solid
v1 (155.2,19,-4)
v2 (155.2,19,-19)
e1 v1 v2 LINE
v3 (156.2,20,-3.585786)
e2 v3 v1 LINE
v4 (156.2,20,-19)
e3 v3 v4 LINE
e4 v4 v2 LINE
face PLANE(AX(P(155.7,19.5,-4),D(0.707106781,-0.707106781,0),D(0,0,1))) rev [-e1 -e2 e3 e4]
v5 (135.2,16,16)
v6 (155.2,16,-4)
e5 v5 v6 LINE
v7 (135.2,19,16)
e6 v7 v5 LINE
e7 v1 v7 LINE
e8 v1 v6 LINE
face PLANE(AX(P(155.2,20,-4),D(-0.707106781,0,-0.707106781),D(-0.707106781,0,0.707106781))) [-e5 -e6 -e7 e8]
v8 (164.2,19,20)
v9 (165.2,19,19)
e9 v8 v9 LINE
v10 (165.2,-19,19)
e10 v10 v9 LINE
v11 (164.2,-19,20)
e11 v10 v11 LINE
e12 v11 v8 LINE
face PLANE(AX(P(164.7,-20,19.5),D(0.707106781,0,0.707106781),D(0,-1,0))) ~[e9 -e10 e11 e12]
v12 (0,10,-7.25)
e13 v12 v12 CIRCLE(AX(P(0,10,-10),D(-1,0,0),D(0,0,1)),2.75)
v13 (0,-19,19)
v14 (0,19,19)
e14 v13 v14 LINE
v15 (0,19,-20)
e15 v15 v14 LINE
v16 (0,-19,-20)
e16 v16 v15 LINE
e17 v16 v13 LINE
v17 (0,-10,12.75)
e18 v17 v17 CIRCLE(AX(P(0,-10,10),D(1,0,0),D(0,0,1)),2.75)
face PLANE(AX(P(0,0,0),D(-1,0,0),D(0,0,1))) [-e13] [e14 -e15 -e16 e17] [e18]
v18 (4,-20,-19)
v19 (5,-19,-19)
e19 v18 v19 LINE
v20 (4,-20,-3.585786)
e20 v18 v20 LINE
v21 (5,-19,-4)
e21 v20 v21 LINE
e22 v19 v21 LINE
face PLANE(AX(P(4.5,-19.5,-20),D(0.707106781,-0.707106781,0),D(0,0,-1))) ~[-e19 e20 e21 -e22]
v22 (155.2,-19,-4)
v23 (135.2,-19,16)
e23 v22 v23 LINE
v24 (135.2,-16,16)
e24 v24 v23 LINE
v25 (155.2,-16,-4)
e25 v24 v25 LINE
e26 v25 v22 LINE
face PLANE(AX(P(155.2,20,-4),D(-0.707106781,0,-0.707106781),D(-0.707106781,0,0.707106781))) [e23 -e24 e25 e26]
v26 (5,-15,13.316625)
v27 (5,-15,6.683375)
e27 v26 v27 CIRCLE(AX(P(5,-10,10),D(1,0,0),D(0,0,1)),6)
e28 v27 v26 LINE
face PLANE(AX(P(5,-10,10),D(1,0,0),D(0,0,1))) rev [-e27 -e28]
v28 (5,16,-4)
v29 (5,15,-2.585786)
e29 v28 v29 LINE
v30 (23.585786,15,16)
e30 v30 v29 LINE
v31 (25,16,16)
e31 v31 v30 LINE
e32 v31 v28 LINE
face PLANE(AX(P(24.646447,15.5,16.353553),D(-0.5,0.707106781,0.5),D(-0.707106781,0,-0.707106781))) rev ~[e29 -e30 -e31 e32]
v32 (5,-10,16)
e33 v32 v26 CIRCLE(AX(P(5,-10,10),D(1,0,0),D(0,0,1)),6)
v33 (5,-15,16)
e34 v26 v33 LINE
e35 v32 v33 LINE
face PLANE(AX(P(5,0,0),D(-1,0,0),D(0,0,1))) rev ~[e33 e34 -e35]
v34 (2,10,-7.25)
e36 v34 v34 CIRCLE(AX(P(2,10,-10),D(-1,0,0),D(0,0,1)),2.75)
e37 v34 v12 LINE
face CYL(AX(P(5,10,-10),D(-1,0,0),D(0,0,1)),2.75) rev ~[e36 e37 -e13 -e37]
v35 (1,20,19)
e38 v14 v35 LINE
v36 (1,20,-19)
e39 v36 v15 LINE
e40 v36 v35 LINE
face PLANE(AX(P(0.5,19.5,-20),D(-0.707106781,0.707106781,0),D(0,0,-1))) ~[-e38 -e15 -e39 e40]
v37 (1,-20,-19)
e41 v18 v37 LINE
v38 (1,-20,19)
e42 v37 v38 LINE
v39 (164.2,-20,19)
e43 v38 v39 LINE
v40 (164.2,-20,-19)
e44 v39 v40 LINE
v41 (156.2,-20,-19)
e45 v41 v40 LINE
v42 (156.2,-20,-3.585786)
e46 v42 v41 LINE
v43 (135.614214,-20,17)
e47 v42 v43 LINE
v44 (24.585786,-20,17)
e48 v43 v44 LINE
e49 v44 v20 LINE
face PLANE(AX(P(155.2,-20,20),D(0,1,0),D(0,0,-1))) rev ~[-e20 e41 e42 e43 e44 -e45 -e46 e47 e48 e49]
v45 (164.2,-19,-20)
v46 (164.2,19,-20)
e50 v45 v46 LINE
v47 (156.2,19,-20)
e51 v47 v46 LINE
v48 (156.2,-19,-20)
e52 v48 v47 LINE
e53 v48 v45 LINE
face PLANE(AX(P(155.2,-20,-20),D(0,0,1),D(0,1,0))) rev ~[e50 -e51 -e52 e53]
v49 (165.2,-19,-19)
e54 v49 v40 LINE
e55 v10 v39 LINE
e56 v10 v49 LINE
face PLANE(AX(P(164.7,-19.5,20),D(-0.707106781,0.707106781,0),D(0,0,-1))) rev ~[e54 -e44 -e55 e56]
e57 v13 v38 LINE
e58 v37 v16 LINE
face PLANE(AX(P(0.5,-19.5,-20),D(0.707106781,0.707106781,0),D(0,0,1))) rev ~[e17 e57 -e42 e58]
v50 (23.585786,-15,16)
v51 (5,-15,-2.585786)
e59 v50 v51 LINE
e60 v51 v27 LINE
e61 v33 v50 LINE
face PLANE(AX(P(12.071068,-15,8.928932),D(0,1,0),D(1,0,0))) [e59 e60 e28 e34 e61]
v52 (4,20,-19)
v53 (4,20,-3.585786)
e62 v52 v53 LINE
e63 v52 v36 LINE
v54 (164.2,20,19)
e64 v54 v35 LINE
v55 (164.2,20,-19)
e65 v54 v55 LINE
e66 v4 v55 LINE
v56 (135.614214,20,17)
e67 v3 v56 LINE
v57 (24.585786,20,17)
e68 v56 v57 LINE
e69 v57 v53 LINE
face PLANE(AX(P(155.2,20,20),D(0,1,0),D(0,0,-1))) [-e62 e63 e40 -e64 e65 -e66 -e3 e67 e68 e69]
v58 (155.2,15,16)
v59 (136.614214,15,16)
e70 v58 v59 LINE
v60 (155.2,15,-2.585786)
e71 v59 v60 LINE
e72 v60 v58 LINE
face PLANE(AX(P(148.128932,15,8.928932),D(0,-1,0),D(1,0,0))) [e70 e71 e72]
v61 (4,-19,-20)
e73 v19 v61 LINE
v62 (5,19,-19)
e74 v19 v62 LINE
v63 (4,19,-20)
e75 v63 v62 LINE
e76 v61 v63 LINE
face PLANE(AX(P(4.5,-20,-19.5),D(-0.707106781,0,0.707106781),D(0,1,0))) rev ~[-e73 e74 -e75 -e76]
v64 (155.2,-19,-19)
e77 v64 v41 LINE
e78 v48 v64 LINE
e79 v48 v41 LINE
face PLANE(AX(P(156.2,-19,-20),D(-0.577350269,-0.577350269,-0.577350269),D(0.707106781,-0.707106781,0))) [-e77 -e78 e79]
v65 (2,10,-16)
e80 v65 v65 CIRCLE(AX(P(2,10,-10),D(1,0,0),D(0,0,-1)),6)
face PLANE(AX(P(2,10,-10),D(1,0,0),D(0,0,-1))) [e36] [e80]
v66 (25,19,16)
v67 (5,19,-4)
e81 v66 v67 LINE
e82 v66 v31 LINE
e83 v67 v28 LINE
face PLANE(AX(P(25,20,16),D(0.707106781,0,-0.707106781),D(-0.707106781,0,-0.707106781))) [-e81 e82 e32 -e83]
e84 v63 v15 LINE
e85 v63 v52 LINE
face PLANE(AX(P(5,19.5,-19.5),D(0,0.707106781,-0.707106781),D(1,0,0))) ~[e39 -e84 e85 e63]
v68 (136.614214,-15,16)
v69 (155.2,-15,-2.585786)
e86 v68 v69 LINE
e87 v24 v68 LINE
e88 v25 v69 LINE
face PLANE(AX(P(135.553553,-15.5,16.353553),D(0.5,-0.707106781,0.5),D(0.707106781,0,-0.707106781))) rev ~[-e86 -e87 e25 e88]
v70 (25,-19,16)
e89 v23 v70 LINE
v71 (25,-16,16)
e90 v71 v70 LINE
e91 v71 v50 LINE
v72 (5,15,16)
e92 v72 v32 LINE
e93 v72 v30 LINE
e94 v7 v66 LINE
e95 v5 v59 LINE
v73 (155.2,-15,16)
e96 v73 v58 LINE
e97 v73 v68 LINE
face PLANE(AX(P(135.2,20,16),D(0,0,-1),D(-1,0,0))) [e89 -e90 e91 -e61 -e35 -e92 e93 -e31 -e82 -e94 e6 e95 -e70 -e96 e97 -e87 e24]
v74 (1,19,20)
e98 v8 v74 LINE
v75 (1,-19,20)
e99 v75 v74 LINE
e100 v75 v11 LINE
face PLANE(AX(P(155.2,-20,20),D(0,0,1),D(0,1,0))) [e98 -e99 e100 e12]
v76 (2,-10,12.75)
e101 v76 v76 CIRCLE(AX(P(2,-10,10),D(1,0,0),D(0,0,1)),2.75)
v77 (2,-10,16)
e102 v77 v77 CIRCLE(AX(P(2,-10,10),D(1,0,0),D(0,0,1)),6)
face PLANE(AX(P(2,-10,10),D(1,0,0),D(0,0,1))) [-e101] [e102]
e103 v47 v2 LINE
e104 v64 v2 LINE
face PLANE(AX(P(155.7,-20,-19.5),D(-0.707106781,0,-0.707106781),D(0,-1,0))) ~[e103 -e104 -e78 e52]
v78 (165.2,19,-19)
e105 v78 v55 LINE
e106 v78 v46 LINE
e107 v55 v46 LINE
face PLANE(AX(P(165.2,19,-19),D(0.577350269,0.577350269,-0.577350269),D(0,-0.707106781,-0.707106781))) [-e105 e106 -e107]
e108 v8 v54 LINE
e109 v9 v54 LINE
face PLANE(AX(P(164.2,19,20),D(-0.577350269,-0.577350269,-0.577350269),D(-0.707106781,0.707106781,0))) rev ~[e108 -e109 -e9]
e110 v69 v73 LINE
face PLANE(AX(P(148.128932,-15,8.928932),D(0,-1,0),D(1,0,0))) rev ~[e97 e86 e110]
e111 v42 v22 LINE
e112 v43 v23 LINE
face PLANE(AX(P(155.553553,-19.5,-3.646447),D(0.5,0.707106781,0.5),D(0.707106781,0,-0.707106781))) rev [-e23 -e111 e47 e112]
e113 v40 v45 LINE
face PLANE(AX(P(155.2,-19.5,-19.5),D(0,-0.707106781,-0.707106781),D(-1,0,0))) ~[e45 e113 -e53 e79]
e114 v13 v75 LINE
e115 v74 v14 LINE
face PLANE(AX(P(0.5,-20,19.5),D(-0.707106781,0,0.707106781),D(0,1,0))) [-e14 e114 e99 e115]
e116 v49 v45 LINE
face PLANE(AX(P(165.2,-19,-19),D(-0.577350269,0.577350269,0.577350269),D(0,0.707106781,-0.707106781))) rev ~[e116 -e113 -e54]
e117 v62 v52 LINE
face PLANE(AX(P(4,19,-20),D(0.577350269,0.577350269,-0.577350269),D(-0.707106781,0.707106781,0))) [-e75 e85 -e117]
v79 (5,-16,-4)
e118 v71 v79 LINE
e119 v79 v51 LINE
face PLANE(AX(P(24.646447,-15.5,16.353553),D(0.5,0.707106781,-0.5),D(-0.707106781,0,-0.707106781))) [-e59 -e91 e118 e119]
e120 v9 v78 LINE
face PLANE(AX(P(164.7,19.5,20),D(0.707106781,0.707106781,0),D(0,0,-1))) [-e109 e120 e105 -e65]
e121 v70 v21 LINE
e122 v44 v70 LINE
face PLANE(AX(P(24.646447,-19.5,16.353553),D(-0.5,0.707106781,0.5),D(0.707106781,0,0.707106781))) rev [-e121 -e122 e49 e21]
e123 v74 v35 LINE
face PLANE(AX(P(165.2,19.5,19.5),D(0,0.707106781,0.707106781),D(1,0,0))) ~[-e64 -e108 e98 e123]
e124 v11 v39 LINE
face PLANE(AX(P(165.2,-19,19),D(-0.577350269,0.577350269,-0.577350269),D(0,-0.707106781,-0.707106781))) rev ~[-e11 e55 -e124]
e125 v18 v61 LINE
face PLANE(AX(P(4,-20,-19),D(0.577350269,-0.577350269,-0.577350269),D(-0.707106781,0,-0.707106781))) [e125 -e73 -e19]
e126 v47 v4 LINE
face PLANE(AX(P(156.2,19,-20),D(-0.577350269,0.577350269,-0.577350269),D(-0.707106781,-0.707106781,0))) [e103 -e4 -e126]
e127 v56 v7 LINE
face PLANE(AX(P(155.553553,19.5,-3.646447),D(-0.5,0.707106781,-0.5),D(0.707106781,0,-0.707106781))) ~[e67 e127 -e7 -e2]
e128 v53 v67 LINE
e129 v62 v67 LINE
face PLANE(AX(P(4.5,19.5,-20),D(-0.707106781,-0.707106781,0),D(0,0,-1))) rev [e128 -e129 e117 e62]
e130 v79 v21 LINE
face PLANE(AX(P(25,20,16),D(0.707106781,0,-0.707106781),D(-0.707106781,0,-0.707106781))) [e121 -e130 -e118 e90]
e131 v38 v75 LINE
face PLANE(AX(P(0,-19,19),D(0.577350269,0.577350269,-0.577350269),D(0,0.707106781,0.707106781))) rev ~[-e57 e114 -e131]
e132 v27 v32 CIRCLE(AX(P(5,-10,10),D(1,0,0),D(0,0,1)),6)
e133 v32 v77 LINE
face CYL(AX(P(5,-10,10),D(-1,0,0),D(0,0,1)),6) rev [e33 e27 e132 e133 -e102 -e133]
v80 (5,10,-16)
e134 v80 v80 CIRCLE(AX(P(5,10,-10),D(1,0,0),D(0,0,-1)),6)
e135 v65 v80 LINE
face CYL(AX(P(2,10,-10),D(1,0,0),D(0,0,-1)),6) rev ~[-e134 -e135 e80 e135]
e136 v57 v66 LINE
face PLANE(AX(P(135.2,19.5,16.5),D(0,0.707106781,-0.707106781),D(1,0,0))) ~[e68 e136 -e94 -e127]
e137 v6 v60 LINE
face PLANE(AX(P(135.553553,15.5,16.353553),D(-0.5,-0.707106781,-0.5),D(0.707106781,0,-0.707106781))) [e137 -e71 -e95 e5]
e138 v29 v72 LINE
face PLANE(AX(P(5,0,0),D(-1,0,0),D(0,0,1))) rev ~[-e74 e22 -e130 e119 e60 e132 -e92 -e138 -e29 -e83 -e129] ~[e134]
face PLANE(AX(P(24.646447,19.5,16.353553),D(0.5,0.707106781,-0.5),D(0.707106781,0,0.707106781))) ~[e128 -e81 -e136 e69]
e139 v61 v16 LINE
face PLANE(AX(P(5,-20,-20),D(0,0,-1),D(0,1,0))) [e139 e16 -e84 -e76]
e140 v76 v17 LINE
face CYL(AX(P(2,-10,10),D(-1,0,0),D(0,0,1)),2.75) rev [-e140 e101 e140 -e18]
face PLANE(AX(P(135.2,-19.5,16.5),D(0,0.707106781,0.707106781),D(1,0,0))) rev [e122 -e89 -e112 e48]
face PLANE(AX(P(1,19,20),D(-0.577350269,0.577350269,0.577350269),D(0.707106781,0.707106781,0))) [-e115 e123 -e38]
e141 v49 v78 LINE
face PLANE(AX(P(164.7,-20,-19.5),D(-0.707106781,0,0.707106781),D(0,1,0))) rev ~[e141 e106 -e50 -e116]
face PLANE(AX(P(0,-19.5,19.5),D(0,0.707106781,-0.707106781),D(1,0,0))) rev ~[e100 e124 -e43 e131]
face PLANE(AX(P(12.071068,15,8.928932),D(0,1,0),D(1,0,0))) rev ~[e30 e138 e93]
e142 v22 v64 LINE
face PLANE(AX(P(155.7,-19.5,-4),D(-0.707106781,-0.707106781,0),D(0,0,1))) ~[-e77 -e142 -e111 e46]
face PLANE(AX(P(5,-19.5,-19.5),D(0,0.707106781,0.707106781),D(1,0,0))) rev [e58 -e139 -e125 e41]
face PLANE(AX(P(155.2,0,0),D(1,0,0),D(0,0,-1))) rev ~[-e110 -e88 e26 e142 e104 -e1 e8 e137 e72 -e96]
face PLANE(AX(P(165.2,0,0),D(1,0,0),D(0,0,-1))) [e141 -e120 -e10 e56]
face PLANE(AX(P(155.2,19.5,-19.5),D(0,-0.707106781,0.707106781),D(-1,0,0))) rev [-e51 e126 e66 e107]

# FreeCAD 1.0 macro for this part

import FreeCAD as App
import Part
import Sketcher


def edges_at(feature, points):
    """Names of the edges that pass closest to the given points."""
    edges = feature.Shape.Edges
    near = lambda p: min(range(len(edges)), key=lambda i: edges[i].distToShape(Part.Vertex(*p))[0])
    return sorted({f"Edge{near(p) + 1}" for p in points})

doc = App.newDocument("Part")
params = doc.addObject("Spreadsheet::Sheet", "Params")
for row, (alias, value) in enumerate([
    ("sketch1_height", "24 mm"),
    ("sketch1_width", "150.2 mm"),
    ("sketch1_width2", "110.2 mm"),
    ("pad1_length", "40 mm"),
    ("sketch2_width", "40 mm"),
    ("pad2_length", "5 mm"),
    ("sketch3_width", "40 mm"),
    ("pad3_length", "10 mm"),
    ("sketch4_width", "20 mm"),
    ("pocket1_length", "30 mm"),
    ("sketch5_width", "20 mm"),
    ("pocket2_length", "30 mm"),
    ("sketch6_width", "5 mm"),
    ("sketch6_width2", "2 mm"),
    ("sketch6_height", "6 mm"),
    ("sketch6_height2", "2.75 mm"),
    ("groove_angle", "360 deg"),
    ("sketch7_diameter", "5.5 mm"),
    ("hole_diameter", "5.5 mm"),
    ("hole_depth", "5 mm"),
    ("hole_cbore_diameter", "12 mm"),
    ("hole_cbore_depth", "3 mm"),
    ("chamfer_size", "1 mm"),
], start=1):
    params.set(f"A{row}", alias)
    params.set(f"B{row}", "=" + value)
    params.setAlias(f"B{row}", alias)

body = doc.addObject("PartDesign::Body", "Body")

sketch1 = body.newObject("Sketcher::SketchObject", "Sketch")
sketch1.AttachmentSupport = (doc.getObject("XZ_Plane"), [""])
sketch1.MapMode = "FlatFace"
sketch1.AttachmentOffset = App.Placement(App.Vector(0, 0, -20), App.Rotation())
sketch1.addGeometry([
    Part.LineSegment(App.Vector(5, -4, 0), App.Vector(5, 20, 0)),
    Part.LineSegment(App.Vector(5, 20, 0), App.Vector(155, 20, 0)),
    Part.LineSegment(App.Vector(155, 20, 0), App.Vector(155, -4, 0)),
    Part.LineSegment(App.Vector(155, -4, 0), App.Vector(135, 16, 0)),
    Part.LineSegment(App.Vector(135, 16, 0), App.Vector(25, 16, 0)),
    Part.LineSegment(App.Vector(25, 16, 0), App.Vector(5, -4, 0)),
], False)
sketch1.addConstraint([
    Sketcher.Constraint("Coincident", 0, 2, 1, 1),
    Sketcher.Constraint("Coincident", 1, 2, 2, 1),
    Sketcher.Constraint("Coincident", 2, 2, 3, 1),
    Sketcher.Constraint("Coincident", 3, 2, 4, 1),
    Sketcher.Constraint("Coincident", 4, 2, 5, 1),
    Sketcher.Constraint("Coincident", 5, 2, 0, 1),
    Sketcher.Constraint("Vertical", 0),
    Sketcher.Constraint("Horizontal", 1),
    Sketcher.Constraint("Vertical", 2),
    Sketcher.Constraint("Horizontal", 4),
    Sketcher.Constraint("Perpendicular", 3, 5),
    Sketcher.Constraint("Horizontal", 2, 2, 5, 2),
    Sketcher.Constraint("Equal", 3, 5),
    Sketcher.Constraint("DistanceY", 0, 1, 0, 2, 24.0),
    Sketcher.Constraint("DistanceX", 1, 1, 1, 2, 150.2),
    Sketcher.Constraint("DistanceX", 4, 2, 4, 1, 110.2),
    Sketcher.Constraint("DistanceX", -1, 1, 0, 2, 5.0),
    Sketcher.Constraint("DistanceY", -1, 1, 0, 2, 20.0),
])
sketch1.setExpression("Constraints[13]", "Params.sketch1_height")
sketch1.setExpression("Constraints[14]", "Params.sketch1_width")
sketch1.setExpression("Constraints[15]", "Params.sketch1_width2")
pad1 = body.newObject("PartDesign::Pad", "Pad")
pad1.Profile = sketch1
pad1.setExpression("Length", "Params.pad1_length")

sketch2 = body.newObject("Sketcher::SketchObject", "Sketch001")
sketch2.AttachmentSupport = (doc.getObject("YZ_Plane"), [""])
sketch2.MapMode = "FlatFace"
sketch2.AttachmentOffset = App.Placement(App.Vector(0, 0, 5), App.Rotation())
sketch2.addGeometry([
    Part.LineSegment(App.Vector(20, -20, 0), App.Vector(-20, -20, 0)),
    Part.LineSegment(App.Vector(-20, -20, 0), App.Vector(-20, 20, 0)),
    Part.LineSegment(App.Vector(-20, 20, 0), App.Vector(20, 20, 0)),
    Part.LineSegment(App.Vector(20, 20, 0), App.Vector(20, -20, 0)),
], False)
sketch2.addConstraint([
    Sketcher.Constraint("Coincident", 0, 2, 1, 1),
    Sketcher.Constraint("Coincident", 1, 2, 2, 1),
    Sketcher.Constraint("Coincident", 2, 2, 3, 1),
    Sketcher.Constraint("Coincident", 3, 2, 0, 1),
    Sketcher.Constraint("Horizontal", 0),
    Sketcher.Constraint("Vertical", 1),
    Sketcher.Constraint("Horizontal", 2),
    Sketcher.Constraint("Vertical", 3),
    Sketcher.Constraint("Symmetric", 0, 2, 2, 2, -1, 1),
    Sketcher.Constraint("Equal", 2, 1),
    Sketcher.Constraint("DistanceX", 0, 2, 0, 1, 40.0),
])
sketch2.setExpression("Constraints[10]", "Params.sketch2_width")
pad2 = body.newObject("PartDesign::Pad", "Pad001")
pad2.Profile = sketch2
pad2.setExpression("Length", "Params.pad2_length")
pad2.Reversed = True

sketch3 = body.newObject("Sketcher::SketchObject", "Sketch002")
sketch3.AttachmentSupport = (doc.getObject("YZ_Plane"), [""])
sketch3.MapMode = "FlatFace"
sketch3.AttachmentOffset = App.Placement(App.Vector(0, 0, 155.2), App.Rotation())
sketch3.addGeometry([
    Part.LineSegment(App.Vector(20, 20, 0), App.Vector(-20, 20, 0)),
    Part.LineSegment(App.Vector(-20, 20, 0), App.Vector(-20, -20, 0)),
    Part.LineSegment(App.Vector(-20, -20, 0), App.Vector(20, -20, 0)),
    Part.LineSegment(App.Vector(20, -20, 0), App.Vector(20, 20, 0)),
], False)
sketch3.addConstraint([
    Sketcher.Constraint("Coincident", 0, 2, 1, 1),
    Sketcher.Constraint("Coincident", 1, 2, 2, 1),
    Sketcher.Constraint("Coincident", 2, 2, 3, 1),
    Sketcher.Constraint("Coincident", 3, 2, 0, 1),
    Sketcher.Constraint("Horizontal", 0),
    Sketcher.Constraint("Vertical", 1),
    Sketcher.Constraint("Horizontal", 2),
    Sketcher.Constraint("Vertical", 3),
    Sketcher.Constraint("Symmetric", 0, 2, 2, 2, -1, 1),
    Sketcher.Constraint("Equal", 2, 1),
    Sketcher.Constraint("DistanceX", 0, 2, 0, 1, 40.0),
])
sketch3.setExpression("Constraints[10]", "Params.sketch3_width")
pad3 = body.newObject("PartDesign::Pad", "Pad002")
pad3.Profile = sketch3
pad3.setExpression("Length", "Params.pad3_length")

sketch4 = body.newObject("Sketcher::SketchObject", "Sketch003")
sketch4.AttachmentSupport = (doc.getObject("XZ_Plane"), [""])
sketch4.MapMode = "FlatFace"
sketch4.AttachmentOffset = App.Placement(App.Vector(0, 0, 15), App.Rotation())
sketch4.addGeometry([
    Part.LineSegment(App.Vector(155, -4, 0), App.Vector(155, 16, 0)),
    Part.LineSegment(App.Vector(155, 16, 0), App.Vector(135, 16, 0)),
    Part.LineSegment(App.Vector(135, 16, 0), App.Vector(155, -4, 0)),
], False)
sketch4.addConstraint([
    Sketcher.Constraint("Coincident", 0, 2, 1, 1),
    Sketcher.Constraint("Coincident", 1, 2, 2, 1),
    Sketcher.Constraint("Coincident", 2, 2, 0, 1),
    Sketcher.Constraint("Vertical", 0),
    Sketcher.Constraint("Horizontal", 1),
    Sketcher.Constraint("Equal", 1, 0),
    Sketcher.Constraint("DistanceX", 1, 2, 1, 1, 20.0),
    Sketcher.Constraint("DistanceY", -1, 1, 0, 2, 16.0),
    Sketcher.Constraint("DistanceX", -1, 1, 0, 2, 155.2),
])
sketch4.setExpression("Constraints[6]", "Params.sketch4_width")
pocket1 = body.newObject("PartDesign::Pocket", "Pocket")
pocket1.Profile = sketch4
pocket1.setExpression("Length", "Params.pocket1_length")

sketch5 = body.newObject("Sketcher::SketchObject", "Sketch004")
sketch5.AttachmentSupport = (doc.getObject("XZ_Plane"), [""])
sketch5.MapMode = "FlatFace"
sketch5.AttachmentOffset = App.Placement(App.Vector(0, 0, -15), App.Rotation())
sketch5.addGeometry([
    Part.LineSegment(App.Vector(5, -4, 0), App.Vector(5, 16, 0)),
    Part.LineSegment(App.Vector(5, 16, 0), App.Vector(25, 16, 0)),
    Part.LineSegment(App.Vector(25, 16, 0), App.Vector(5, -4, 0)),
], False)
sketch5.addConstraint([
    Sketcher.Constraint("Coincident", 0, 2, 1, 1),
    Sketcher.Constraint("Coincident", 1, 2, 2, 1),
    Sketcher.Constraint("Coincident", 2, 2, 0, 1),
    Sketcher.Constraint("Vertical", 0),
    Sketcher.Constraint("Horizontal", 1),
    Sketcher.Constraint("Equal", 1, 0),
    Sketcher.Constraint("DistanceX", 1, 1, 1, 2, 20.0),
    Sketcher.Constraint("DistanceX", -1, 1, 0, 2, 5.0),
    Sketcher.Constraint("DistanceY", -1, 1, 0, 2, 16.0),
])
sketch5.setExpression("Constraints[6]", "Params.sketch5_width")
pocket2 = body.newObject("PartDesign::Pocket", "Pocket001")
pocket2.Profile = sketch5
pocket2.setExpression("Length", "Params.pocket2_length")
pocket2.Reversed = True

sketch6 = body.newObject("Sketcher::SketchObject", "Sketch005")
sketch6.AttachmentSupport = (doc.getObject("XZ_Plane"), [""])
sketch6.MapMode = "FlatFace"
sketch6.AttachmentOffset = App.Placement(App.Vector(0, 0, 10), App.Rotation())
sketch6.addGeometry([
    Part.LineSegment(App.Vector(5, 10, 0), App.Vector(0, 10, 0)),
    Part.LineSegment(App.Vector(0, 10, 0), App.Vector(0, 12.8, 0)),
    Part.LineSegment(App.Vector(0, 12.8, 0), App.Vector(2, 12.8, 0)),
    Part.LineSegment(App.Vector(2, 12.8, 0), App.Vector(2, 16, 0)),
    Part.LineSegment(App.Vector(2, 16, 0), App.Vector(5, 16, 0)),
    Part.LineSegment(App.Vector(5, 16, 0), App.Vector(5, 10, 0)),
], False)
sketch6.addGeometry(Part.LineSegment(App.Vector(0, 10, 0), App.Vector(5, 10, 0)), True)
sketch6.addConstraint([
    Sketcher.Constraint("Coincident", 0, 2, 1, 1),
    Sketcher.Constraint("Coincident", 1, 2, 2, 1),
    Sketcher.Constraint("Coincident", 2, 2, 3, 1),
    Sketcher.Constraint("Coincident", 3, 2, 4, 1),
    Sketcher.Constraint("Coincident", 4, 2, 5, 1),
    Sketcher.Constraint("Coincident", 5, 2, 0, 1),
    Sketcher.Constraint("Horizontal", 0),
    Sketcher.Constraint("Vertical", 1),
    Sketcher.Constraint("Horizontal", 2),
    Sketcher.Constraint("Vertical", 3),
    Sketcher.Constraint("Horizontal", 4),
    Sketcher.Constraint("Vertical", 5),
    Sketcher.Constraint("Horizontal", 6),
    Sketcher.Constraint("Coincident", 6, 1, 0, 2),
    Sketcher.Constraint("PointOnObject", 0, 2, -2),
    Sketcher.Constraint("Vertical", 4, 2, 6, 2),
    Sketcher.Constraint("DistanceX", 0, 2, 0, 1, 5.0),
    Sketcher.Constraint("DistanceX", 2, 1, 2, 2, 2.0),
    Sketcher.Constraint("DistanceY", 5, 2, 5, 1, 6.0),
    Sketcher.Constraint("DistanceY", -1, 1, 0, 2, 10.0),
    Sketcher.Constraint("DistanceY", 1, 1, 1, 2, 2.75),
])
sketch6.setExpression("Constraints[16]", "Params.sketch6_width")
sketch6.setExpression("Constraints[17]", "Params.sketch6_width2")
sketch6.setExpression("Constraints[18]", "Params.sketch6_height")
sketch6.setExpression("Constraints[20]", "Params.sketch6_height2")
groove = body.newObject("PartDesign::Groove", "Groove")
groove.Profile = sketch6
groove.ReferenceAxis = (sketch6, ["Axis0"])
groove.setExpression("Angle", "Params.groove_angle")

sketch7 = body.newObject("Sketcher::SketchObject", "Sketch006")
sketch7.AttachmentSupport = (doc.getObject("YZ_Plane"), [""])
sketch7.MapMode = "FlatFace"
sketch7.AttachmentOffset = App.Placement(App.Vector(0, 0, 5), App.Rotation())
sketch7.addGeometry(Part.Circle(App.Vector(10, -10, 0), App.Vector(0, 0, 1), 2.8), False)
sketch7.addConstraint([
    Sketcher.Constraint("Diameter", 0, 5.5),
    Sketcher.Constraint("DistanceX", -1, 1, 0, 3, 10.0),
    Sketcher.Constraint("DistanceY", 0, 3, -1, 1, 10.0),
])
sketch7.setExpression("Constraints[0]", "Params.sketch7_diameter")
doc.recompute()
hole = body.newObject("PartDesign::Hole", "Hole")
hole.Profile = sketch7
hole.ThreadType = "None"
hole.setExpression("Diameter", "Params.hole_diameter")
hole.DepthType = "Dimension"
hole.setExpression("Depth", "Params.hole_depth")
hole.DrillPoint = "Flat"
hole.HoleCutType = "Counterbore"
hole.setExpression("HoleCutDiameter", "Params.hole_cbore_diameter")
hole.setExpression("HoleCutDepth", "Params.hole_cbore_depth")
doc.recompute()

chamfer = body.newObject("PartDesign::Chamfer", "Chamfer")
chamfer.Base = (hole, edges_at(hole, [
    (82.6, -20, 20),
    (5, 20, -12),
    (5, 0, -20),
    (2.5, 20, -20),
    (5, -20, -12),
    (145.2, -20, 6),
    (2.5, -20, -20),
    (0, 20, 0),
    (0, -20, 0),
    (0, 0, 20),
    (80.1, -20, 16),
    (155.2, 20, -12),
    (160.2, 20, -20),
    (155.2, -20, -12),
    (155.2, 0, -20),
    (160.2, -20, -20),
    (165.2, 20, 0),
    (165.2, 0, 20),
    (165.2, -20, 0),
    (165.2, 0, -20),
    (145.2, 15, 6),
    (145.2, -15, 6),
    (15, -20, 6),
    (15, -15, 6),
    (15, 15, 6),
    (80.1, 20, 16),
    (145.2, 20, 6),
    (82.6, 20, 20),
    (15, 20, 6),
]))
chamfer.setExpression("Size", "Params.chamfer_size")

doc.recompute()
